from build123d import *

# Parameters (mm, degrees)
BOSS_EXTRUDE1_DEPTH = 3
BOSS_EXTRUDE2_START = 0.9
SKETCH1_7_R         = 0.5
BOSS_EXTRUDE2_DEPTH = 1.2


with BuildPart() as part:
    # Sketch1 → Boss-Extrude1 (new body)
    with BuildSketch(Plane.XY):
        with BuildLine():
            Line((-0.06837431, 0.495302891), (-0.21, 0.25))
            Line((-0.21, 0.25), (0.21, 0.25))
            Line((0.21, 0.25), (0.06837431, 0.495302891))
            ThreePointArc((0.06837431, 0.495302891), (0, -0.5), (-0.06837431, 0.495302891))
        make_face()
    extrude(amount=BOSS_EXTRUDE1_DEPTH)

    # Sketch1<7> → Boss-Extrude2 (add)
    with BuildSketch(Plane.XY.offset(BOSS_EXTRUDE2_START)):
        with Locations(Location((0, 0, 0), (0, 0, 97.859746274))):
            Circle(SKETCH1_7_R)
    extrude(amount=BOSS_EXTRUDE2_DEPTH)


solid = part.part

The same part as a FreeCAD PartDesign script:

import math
import FreeCAD as App
import Part
import Sketcher

V = App.Vector
Q = App.Units.Quantity

doc = App.newDocument("Part")
body = doc.addObject("PartDesign::Body", "Body")

# Sketch on XY plane
sketch1 = doc.addObject("Sketcher::SketchObject", "Sketch")
body.addObject(sketch1)
sketch1.AttachmentSupport = (doc.XY_Plane, [""])
sketch1.MapMode = "FlatFace"
sketch1.addGeometry([
    Part.LineSegment(V(-0.21, 0.25, 0), V(-0.07, 0.5, 0)),
    Part.ArcOfCircle(Part.Circle(V(0, 0, 0), V(0, 0, 1), 0.5), math.radians(98), math.radians(442)),
    Part.LineSegment(V(0.07, 0.5, 0), V(0.21, 0.25, 0)),
    Part.LineSegment(V(0.21, 0.25, 0), V(-0.21, 0.25, 0)),
], False)
sketch1.addConstraint([
    Sketcher.Constraint("Coincident", 0, 2, 1, 1),
    Sketcher.Constraint("Coincident", 1, 2, 2, 1),
    Sketcher.Constraint("Coincident", 2, 2, 3, 1),
    Sketcher.Constraint("Coincident", 3, 2, 0, 1),
    Sketcher.Constraint("Horizontal", 3),
    Sketcher.Constraint("Coincident", 1, 3, -1, 1),
    Sketcher.Constraint("Horizontal", 0, 2, 1, 2),
    Sketcher.Constraint("Equal", 0, 2),
    Sketcher.Constraint("Radius", 1, Q("0.5 mm")),
    Sketcher.Constraint("Angle", 0, Q("60 deg")),
    Sketcher.Constraint("DistanceX", 3, 2, 3, 1, Q("0.42 mm")),
    Sketcher.Constraint("DistanceY", -1, 1, 2, 2, Q("0.25 mm")),
])
pad1 = doc.addObject("PartDesign::Pad", "Pad")
body.addObject(pad1)
pad1.Profile = sketch1
pad1.Length = 3

# Sketch on XY plane
sketch2 = doc.addObject("Sketcher::SketchObject", "Sketch001")
body.addObject(sketch2)
sketch2.AttachmentSupport = (doc.XY_Plane, [""])
sketch2.MapMode = "FlatFace"
sketch2.AttachmentOffset = App.Placement(V(0, 0, 0.9), App.Rotation())
sketch2.addGeometry(Part.Circle(V(0, 0, 0), V(0, 0, 1), 0.5), False)
sketch2.addConstraint([
    Sketcher.Constraint("Coincident", 0, 3, -1, 1),
    Sketcher.Constraint("Diameter", 0, Q("1 mm")),
])
pad2 = doc.addObject("PartDesign::Pad", "Pad001")
body.addObject(pad2)
pad2.Profile = sketch2
pad2.Length = 1.2

doc.recompute()
